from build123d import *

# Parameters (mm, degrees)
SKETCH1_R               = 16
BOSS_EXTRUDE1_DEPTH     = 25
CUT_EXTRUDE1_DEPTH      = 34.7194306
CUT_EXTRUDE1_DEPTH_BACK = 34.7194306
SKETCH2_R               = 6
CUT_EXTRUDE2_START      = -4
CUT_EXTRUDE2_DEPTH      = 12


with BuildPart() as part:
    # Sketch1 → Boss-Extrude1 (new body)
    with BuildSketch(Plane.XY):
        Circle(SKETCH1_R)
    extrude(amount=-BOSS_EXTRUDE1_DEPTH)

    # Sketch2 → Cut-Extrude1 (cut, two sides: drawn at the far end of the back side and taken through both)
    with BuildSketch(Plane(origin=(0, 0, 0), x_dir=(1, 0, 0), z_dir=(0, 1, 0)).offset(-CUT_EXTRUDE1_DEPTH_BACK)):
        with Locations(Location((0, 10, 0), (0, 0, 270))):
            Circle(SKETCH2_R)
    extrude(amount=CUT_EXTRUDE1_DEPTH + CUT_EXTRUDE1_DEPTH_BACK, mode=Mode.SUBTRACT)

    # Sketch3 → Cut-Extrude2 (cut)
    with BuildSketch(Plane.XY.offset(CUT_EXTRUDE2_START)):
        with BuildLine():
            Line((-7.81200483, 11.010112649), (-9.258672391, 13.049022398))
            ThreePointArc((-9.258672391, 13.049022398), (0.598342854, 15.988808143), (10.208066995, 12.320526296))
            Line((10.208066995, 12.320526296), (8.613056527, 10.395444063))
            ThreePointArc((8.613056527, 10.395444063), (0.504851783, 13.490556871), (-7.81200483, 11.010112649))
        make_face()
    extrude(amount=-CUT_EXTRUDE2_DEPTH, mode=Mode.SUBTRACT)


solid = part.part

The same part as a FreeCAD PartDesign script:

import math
import FreeCAD as App
import Part
import Sketcher
Q = App.Units.Quantity

doc = App.newDocument("Part")
body = doc.addObject("PartDesign::Body", "Body")

# Sketch on XY plane
sketch1 = body.newObject("Sketcher::SketchObject", "Sketch")
sketch1.AttachmentSupport = (doc.getObject("XY_Plane"), [""])
sketch1.MapMode = "FlatFace"
sketch1.addGeometry(Part.Circle(App.Vector(0, 0, 0), App.Vector(0, 0, 1), 16), False)
sketch1.addConstraint(Sketcher.Constraint("Coincident", 0, 3, -1, 1))
sketch1.addConstraint(Sketcher.Constraint("Diameter", 0, Q("32 mm")))
pad1 = body.newObject("PartDesign::Pad", "Pad")
pad1.Profile = sketch1
pad1.Length = 25
pad1.Reversed = True

# Sketch on XZ plane
sketch2 = body.newObject("Sketcher::SketchObject", "Sketch001")
sketch2.AttachmentSupport = (doc.getObject("XZ_Plane"), [""])
sketch2.MapMode = "FlatFace"
sketch2.addGeometry(Part.Circle(App.Vector(0, -10, 0), App.Vector(0, 0, 1), 6), False)
sketch2.addConstraint(Sketcher.Constraint("PointOnObject", 0, 3, -2))
sketch2.addConstraint(Sketcher.Constraint("Diameter", 0, Q("12 mm")))
sketch2.addConstraint(Sketcher.Constraint("DistanceY", 0, 3, -1, 1, Q("10 mm")))
pocket1 = body.newObject("PartDesign::Pocket", "Pocket")
pocket1.Profile = sketch2
pocket1.Type = "ThroughAll"
pocket1.Midplane = True

# Sketch on XY plane
sketch3 = body.newObject("Sketcher::SketchObject", "Sketch002")
sketch3.AttachmentSupport = (doc.getObject("XY_Plane"), [""])
sketch3.MapMode = "FlatFace"
sketch3.AttachmentOffset = App.Placement(App.Vector(0, 0, -4), App.Rotation())
sketch3.addGeometry(Part.LineSegment(App.Vector(-9.258672, 13.049022, 0), App.Vector(-7.812005, 11.010113, 0)), False)
sketch3.addGeometry(Part.ArcOfCircle(Part.Circle(App.Vector(0, 0, 0), App.Vector(0, 0, 1), 13.5), math.radians(50.356843), math.radians(125.356843)), False)
sketch3.addGeometry(Part.LineSegment(App.Vector(8.613057, 10.395444, 0), App.Vector(10.208067, 12.320526, 0)), False)
sketch3.addGeometry(Part.ArcOfCircle(Part.Circle(App.Vector(0, 0, 0), App.Vector(0, 0, 1), 16), math.radians(50.356843), math.radians(125.356843)), False)
sketch3.addConstraint(Sketcher.Constraint("Coincident", 0, 2, 1, 2))
sketch3.addConstraint(Sketcher.Constraint("Coincident", 1, 1, 2, 1))
sketch3.addConstraint(Sketcher.Constraint("Coincident", 2, 2, 3, 1))
sketch3.addConstraint(Sketcher.Constraint("Coincident", 3, 2, 0, 1))
sketch3.addConstraint(Sketcher.Constraint("Coincident", 1, 3, -1, 1))
sketch3.addConstraint(Sketcher.Constraint("Coincident", 3, 3, -1, 1))
sketch3.addConstraint(Sketcher.Constraint("Radius", 3, Q("16 mm")))
sketch3.addConstraint(Sketcher.Constraint("Radius", 1, Q("13.5 mm")))
sketch3.addConstraint(Sketcher.Constraint("DistanceX", 0, 2, 1, 1, Q("16.425061 mm")))
sketch3.addConstraint(Sketcher.Constraint("DistanceY", 1, 1, 0, 2, Q("0.614669 mm")))
sketch3.addConstraint(Sketcher.Constraint("DistanceX", 1, 1, 2, 2, Q("1.59501 mm")))
sketch3.addConstraint(Sketcher.Constraint("DistanceY", 0, 2, 3, 2, Q("2.03891 mm")))
pocket2 = body.newObject("PartDesign::Pocket", "Pocket001")
pocket2.Profile = sketch3
pocket2.Length = 12

doc.recompute()
